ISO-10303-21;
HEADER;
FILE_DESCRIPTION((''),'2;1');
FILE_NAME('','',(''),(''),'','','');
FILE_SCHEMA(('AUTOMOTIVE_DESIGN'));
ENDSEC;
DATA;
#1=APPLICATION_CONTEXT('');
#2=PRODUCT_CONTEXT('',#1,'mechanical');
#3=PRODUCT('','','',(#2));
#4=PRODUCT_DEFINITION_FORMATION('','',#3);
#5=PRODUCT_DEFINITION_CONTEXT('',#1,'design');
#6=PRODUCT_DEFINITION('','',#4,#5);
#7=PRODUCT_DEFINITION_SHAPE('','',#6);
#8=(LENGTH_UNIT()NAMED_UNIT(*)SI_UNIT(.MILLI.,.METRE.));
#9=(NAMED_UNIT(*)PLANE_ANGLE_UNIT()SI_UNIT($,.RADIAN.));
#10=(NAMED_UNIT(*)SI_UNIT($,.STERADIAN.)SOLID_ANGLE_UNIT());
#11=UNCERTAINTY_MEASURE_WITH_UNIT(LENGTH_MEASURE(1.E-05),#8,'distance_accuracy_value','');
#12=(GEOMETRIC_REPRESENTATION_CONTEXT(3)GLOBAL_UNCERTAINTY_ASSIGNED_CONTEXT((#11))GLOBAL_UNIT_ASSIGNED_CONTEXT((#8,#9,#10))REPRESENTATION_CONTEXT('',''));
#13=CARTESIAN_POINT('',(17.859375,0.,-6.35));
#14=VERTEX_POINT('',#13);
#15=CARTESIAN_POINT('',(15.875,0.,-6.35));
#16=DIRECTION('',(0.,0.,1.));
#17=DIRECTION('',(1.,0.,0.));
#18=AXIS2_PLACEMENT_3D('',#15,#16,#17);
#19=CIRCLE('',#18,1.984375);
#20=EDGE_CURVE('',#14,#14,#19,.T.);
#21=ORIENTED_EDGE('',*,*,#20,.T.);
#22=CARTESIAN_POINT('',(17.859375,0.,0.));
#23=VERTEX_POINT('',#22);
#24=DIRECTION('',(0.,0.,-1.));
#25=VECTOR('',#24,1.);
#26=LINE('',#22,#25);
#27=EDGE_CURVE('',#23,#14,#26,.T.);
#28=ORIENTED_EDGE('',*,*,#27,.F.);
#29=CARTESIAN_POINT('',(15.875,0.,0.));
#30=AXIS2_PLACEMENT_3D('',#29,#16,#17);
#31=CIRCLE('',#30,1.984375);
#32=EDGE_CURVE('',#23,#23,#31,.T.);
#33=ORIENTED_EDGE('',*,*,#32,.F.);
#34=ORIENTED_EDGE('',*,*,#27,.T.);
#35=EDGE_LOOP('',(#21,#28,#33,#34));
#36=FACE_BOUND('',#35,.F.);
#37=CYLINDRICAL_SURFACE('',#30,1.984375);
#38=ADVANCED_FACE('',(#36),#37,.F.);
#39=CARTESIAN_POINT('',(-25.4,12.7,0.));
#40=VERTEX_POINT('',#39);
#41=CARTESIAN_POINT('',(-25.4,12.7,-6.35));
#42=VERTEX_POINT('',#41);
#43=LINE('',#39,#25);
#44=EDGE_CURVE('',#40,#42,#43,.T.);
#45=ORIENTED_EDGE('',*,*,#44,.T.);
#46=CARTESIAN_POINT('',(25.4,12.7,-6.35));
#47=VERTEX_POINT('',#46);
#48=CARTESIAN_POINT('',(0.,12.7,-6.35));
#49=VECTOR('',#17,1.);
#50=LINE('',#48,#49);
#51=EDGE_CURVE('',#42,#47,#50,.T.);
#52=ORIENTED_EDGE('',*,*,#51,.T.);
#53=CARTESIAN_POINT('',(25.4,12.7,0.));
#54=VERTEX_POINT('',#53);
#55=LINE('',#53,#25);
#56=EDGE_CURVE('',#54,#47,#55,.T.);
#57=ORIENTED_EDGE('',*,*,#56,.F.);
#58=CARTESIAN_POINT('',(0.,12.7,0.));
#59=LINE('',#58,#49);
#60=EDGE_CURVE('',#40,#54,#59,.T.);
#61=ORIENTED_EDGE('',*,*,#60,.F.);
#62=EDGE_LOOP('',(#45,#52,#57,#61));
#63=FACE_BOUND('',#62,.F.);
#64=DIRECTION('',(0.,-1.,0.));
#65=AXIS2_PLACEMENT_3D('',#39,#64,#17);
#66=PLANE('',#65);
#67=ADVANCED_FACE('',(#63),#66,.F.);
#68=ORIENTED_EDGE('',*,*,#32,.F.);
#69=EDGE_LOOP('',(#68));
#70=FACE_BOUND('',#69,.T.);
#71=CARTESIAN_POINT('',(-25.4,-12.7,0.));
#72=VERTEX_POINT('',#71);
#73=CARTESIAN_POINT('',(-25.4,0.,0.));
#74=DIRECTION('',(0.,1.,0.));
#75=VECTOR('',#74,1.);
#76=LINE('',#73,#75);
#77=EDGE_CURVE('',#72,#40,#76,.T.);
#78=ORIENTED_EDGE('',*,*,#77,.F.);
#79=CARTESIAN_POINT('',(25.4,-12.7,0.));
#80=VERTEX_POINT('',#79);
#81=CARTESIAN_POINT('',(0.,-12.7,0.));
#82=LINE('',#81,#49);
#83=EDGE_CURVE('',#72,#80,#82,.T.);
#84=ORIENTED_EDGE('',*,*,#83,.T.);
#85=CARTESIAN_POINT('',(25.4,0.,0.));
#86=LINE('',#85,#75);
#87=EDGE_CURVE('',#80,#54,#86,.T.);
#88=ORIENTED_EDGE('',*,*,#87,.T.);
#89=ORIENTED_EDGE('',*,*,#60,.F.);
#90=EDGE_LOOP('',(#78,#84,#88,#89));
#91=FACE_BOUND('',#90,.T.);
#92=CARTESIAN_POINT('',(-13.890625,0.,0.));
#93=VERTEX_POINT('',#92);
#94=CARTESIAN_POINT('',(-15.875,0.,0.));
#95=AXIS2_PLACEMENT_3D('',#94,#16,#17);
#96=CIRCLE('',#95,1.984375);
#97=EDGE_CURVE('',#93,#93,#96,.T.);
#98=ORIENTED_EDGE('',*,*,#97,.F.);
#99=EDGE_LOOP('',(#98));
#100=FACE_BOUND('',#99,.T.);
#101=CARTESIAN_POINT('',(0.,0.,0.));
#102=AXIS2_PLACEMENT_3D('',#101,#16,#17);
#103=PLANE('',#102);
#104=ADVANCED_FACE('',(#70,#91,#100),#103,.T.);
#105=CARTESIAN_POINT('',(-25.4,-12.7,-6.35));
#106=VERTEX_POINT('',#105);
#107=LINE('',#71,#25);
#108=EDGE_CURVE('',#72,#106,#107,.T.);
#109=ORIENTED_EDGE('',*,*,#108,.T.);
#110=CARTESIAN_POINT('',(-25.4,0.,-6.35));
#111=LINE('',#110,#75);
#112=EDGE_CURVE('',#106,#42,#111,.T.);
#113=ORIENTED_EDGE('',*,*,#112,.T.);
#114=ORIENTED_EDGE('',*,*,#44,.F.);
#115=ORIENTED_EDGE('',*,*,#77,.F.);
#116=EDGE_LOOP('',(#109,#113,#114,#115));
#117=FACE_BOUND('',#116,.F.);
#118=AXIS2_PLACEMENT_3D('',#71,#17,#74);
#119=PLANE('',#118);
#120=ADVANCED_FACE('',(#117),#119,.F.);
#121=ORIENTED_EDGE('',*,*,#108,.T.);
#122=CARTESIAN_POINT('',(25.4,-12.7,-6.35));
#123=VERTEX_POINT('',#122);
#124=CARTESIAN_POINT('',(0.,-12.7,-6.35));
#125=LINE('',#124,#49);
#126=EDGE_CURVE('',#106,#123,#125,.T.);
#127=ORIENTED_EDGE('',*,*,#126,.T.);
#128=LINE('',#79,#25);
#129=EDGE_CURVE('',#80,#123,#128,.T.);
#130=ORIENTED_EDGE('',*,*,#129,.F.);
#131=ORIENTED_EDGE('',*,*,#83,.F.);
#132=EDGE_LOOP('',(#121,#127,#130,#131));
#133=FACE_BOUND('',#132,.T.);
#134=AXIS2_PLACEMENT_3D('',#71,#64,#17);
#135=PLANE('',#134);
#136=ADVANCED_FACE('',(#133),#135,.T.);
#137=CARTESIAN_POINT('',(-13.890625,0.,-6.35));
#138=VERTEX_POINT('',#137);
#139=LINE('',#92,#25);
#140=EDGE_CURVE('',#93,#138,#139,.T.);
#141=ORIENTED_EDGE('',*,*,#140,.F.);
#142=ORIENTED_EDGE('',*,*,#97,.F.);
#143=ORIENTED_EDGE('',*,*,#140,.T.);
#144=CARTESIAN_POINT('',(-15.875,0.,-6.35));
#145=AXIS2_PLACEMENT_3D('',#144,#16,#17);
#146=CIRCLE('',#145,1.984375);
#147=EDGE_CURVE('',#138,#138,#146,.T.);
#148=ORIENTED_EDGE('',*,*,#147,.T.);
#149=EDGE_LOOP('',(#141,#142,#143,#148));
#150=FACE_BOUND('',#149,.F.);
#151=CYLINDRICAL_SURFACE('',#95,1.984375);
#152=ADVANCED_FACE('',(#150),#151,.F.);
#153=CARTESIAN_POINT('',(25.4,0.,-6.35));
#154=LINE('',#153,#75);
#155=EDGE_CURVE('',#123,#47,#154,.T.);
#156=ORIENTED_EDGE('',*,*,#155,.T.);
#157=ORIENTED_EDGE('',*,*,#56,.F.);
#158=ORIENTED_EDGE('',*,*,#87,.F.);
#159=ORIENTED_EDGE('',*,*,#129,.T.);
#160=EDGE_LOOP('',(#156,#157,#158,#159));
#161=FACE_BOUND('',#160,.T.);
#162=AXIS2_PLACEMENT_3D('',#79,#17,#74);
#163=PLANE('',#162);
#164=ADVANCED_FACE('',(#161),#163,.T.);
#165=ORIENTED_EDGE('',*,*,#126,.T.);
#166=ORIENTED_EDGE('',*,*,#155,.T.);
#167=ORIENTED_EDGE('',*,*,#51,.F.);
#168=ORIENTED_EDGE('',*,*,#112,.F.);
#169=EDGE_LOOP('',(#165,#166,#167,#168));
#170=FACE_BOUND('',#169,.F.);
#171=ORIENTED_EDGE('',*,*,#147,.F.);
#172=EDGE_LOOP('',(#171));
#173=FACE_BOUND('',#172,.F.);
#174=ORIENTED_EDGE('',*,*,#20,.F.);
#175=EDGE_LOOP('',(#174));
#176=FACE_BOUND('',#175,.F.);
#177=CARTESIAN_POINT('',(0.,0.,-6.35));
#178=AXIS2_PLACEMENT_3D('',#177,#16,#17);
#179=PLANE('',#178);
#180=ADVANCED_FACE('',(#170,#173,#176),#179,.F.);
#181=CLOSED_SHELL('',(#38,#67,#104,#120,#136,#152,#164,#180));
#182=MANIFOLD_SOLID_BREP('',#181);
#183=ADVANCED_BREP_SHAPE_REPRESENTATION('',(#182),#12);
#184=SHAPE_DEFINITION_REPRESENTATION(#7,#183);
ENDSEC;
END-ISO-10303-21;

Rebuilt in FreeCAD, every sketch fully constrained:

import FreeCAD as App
import Part
import Sketcher
Q = App.Units.Quantity

doc = App.newDocument("Part")
params = doc.addObject("Spreadsheet::Sheet", "Params")
for row, (alias, value) in enumerate([
    ("sketch1_width", "2 in"),
    ("sketch1_height", "1 in"),
    ("pad1_length", "0.25 in"),
    ("sketch2_diameter", "0.15625 in"),
], start=1):
    params.set(f"A{row}", alias)
    params.set(f"B{row}", "=" + value)
    params.setAlias(f"B{row}", alias)

body = doc.addObject("PartDesign::Body", "Body")

sketch1 = doc.addObject("Sketcher::SketchObject", "Sketch")
body.addObject(sketch1)
sketch1.AttachmentSupport = (doc.XY_Plane, [""])
sketch1.MapMode = "FlatFace"
sketch1.addGeometry(Part.LineSegment(App.Vector(-25, 13, 0), App.Vector(-25, -13, 0)), False)
sketch1.addGeometry(Part.LineSegment(App.Vector(-25, -13, 0), App.Vector(25, -13, 0)), False)
sketch1.addGeometry(Part.LineSegment(App.Vector(25, -13, 0), App.Vector(25, 13, 0)), False)
sketch1.addGeometry(Part.LineSegment(App.Vector(25, 13, 0), App.Vector(-25, 13, 0)), False)
sketch1.addConstraint(Sketcher.Constraint("Coincident", 0, 2, 1, 1))
sketch1.addConstraint(Sketcher.Constraint("Coincident", 1, 2, 2, 1))
sketch1.addConstraint(Sketcher.Constraint("Coincident", 2, 2, 3, 1))
sketch1.addConstraint(Sketcher.Constraint("Coincident", 3, 2, 0, 1))
sketch1.addConstraint(Sketcher.Constraint("Vertical", 0))
sketch1.addConstraint(Sketcher.Constraint("Horizontal", 1))
sketch1.addConstraint(Sketcher.Constraint("Vertical", 2))
sketch1.addConstraint(Sketcher.Constraint("Horizontal", 3))
sketch1.addConstraint(Sketcher.Constraint("Symmetric", 0, 2, 2, 2, -1, 1))
sketch1.addConstraint(Sketcher.Constraint("DistanceX", 1, 1, 1, 2, Q("2 in")))
sketch1.addConstraint(Sketcher.Constraint("DistanceY", 0, 2, 0, 1, Q("1 in")))
sketch1.setExpression("Constraints[9]", "Params.sketch1_width")
sketch1.setExpression("Constraints[10]", "Params.sketch1_height")
pad1 = doc.addObject("PartDesign::Pad", "Pad")
body.addObject(pad1)
pad1.Profile = sketch1
pad1.setExpression("Length", "Params.pad1_length")
pad1.Reversed = True

sketch2 = doc.addObject("Sketcher::SketchObject", "Sketch001")
body.addObject(sketch2)
sketch2.AttachmentSupport = (doc.XY_Plane, [""])
sketch2.MapMode = "FlatFace"
sketch2.addGeometry(Part.Circle(App.Vector(-15.9, 0, 0), App.Vector(0, 0, 1), 2), False)
sketch2.addGeometry(Part.Circle(App.Vector(15.9, 0, 0), App.Vector(0, 0, 1), 2), False)
sketch2.addConstraint(Sketcher.Constraint("Equal", 0, 1))
sketch2.addConstraint(Sketcher.Constraint("Symmetric", 0, 3, 1, 3, -1, 1))
sketch2.addConstraint(Sketcher.Constraint("PointOnObject", 0, 3, -1))
sketch2.addConstraint(Sketcher.Constraint("Diameter", 0, Q("0.15625 in")))
sketch2.addConstraint(Sketcher.Constraint("DistanceX", 0, 3, 1, 3, Q("1.25 in")))
sketch2.setExpression("Constraints[3]", "Params.sketch2_diameter")
pocket1 = doc.addObject("PartDesign::Pocket", "Pocket")
body.addObject(pocket1)
pocket1.Profile = sketch2
pocket1.Type = "ThroughAll"

doc.recompute()
